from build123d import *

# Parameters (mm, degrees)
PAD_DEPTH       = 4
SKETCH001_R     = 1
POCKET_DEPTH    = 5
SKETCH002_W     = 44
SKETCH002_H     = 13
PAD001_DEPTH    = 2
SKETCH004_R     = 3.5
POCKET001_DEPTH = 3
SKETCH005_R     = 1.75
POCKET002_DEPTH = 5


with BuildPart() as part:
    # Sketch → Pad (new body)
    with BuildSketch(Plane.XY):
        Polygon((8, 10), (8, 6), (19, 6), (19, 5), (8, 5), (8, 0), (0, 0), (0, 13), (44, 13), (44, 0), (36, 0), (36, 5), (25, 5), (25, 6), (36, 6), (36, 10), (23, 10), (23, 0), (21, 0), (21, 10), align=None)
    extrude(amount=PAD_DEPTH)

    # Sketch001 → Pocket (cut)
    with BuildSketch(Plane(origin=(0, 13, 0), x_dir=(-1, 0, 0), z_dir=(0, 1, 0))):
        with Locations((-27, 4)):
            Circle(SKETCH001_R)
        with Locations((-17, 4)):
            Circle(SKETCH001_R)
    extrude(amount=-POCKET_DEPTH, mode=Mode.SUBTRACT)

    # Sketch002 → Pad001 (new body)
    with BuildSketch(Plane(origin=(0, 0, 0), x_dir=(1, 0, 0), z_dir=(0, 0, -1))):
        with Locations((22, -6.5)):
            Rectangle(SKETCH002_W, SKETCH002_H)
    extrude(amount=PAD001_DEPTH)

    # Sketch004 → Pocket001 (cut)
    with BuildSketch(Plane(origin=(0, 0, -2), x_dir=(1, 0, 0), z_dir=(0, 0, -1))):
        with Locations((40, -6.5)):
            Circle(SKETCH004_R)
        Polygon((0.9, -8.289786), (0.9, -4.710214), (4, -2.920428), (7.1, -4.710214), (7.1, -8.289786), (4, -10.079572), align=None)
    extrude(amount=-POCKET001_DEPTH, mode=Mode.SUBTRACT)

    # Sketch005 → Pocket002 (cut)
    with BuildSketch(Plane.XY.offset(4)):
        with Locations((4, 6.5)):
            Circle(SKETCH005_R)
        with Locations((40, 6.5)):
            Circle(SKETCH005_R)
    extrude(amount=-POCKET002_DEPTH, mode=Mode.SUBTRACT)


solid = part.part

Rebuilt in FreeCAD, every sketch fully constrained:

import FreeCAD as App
import Part
import Sketcher
Q = App.Units.Quantity

doc = App.newDocument("Part")
body = doc.addObject("PartDesign::Body", "Body")

sketch1 = body.newObject("Sketcher::SketchObject", "Sketch")
sketch1.AttachmentSupport = (doc.getObject("XY_Plane"), [""])
sketch1.MapMode = "FlatFace"
sketch1.addGeometry(Part.LineSegment(App.Vector(8, 6, 0), App.Vector(8, 10, 0)), False)
sketch1.addGeometry(Part.LineSegment(App.Vector(8, 10, 0), App.Vector(21, 10, 0)), False)
sketch1.addGeometry(Part.LineSegment(App.Vector(21, 10, 0), App.Vector(21, 0, 0)), False)
sketch1.addGeometry(Part.LineSegment(App.Vector(21, 0, 0), App.Vector(23, 0, 0)), False)
sketch1.addGeometry(Part.LineSegment(App.Vector(23, 0, 0), App.Vector(23, 10, 0)), False)
sketch1.addGeometry(Part.LineSegment(App.Vector(23, 10, 0), App.Vector(36, 10, 0)), False)
sketch1.addGeometry(Part.LineSegment(App.Vector(36, 10, 0), App.Vector(36, 6, 0)), False)
sketch1.addGeometry(Part.LineSegment(App.Vector(36, 6, 0), App.Vector(25, 6, 0)), False)
sketch1.addGeometry(Part.LineSegment(App.Vector(25, 6, 0), App.Vector(25, 5, 0)), False)
sketch1.addGeometry(Part.LineSegment(App.Vector(25, 5, 0), App.Vector(36, 5, 0)), False)
sketch1.addGeometry(Part.LineSegment(App.Vector(36, 5, 0), App.Vector(36, 0, 0)), False)
sketch1.addGeometry(Part.LineSegment(App.Vector(36, 0, 0), App.Vector(44, 0, 0)), False)
sketch1.addGeometry(Part.LineSegment(App.Vector(44, 0, 0), App.Vector(44, 13, 0)), False)
sketch1.addGeometry(Part.LineSegment(App.Vector(44, 13, 0), App.Vector(0, 13, 0)), False)
sketch1.addGeometry(Part.LineSegment(App.Vector(0, 13, 0), App.Vector(0, 0, 0)), False)
sketch1.addGeometry(Part.LineSegment(App.Vector(0, 0, 0), App.Vector(8, 0, 0)), False)
sketch1.addGeometry(Part.LineSegment(App.Vector(8, 0, 0), App.Vector(8, 5, 0)), False)
sketch1.addGeometry(Part.LineSegment(App.Vector(8, 5, 0), App.Vector(19, 5, 0)), False)
sketch1.addGeometry(Part.LineSegment(App.Vector(19, 5, 0), App.Vector(19, 6, 0)), False)
sketch1.addGeometry(Part.LineSegment(App.Vector(19, 6, 0), App.Vector(8, 6, 0)), False)
sketch1.addConstraint(Sketcher.Constraint("Coincident", 0, 2, 1, 1))
sketch1.addConstraint(Sketcher.Constraint("Coincident", 1, 2, 2, 1))
sketch1.addConstraint(Sketcher.Constraint("Coincident", 2, 2, 3, 1))
sketch1.addConstraint(Sketcher.Constraint("Coincident", 3, 2, 4, 1))
sketch1.addConstraint(Sketcher.Constraint("Coincident", 4, 2, 5, 1))
sketch1.addConstraint(Sketcher.Constraint("Coincident", 5, 2, 6, 1))
sketch1.addConstraint(Sketcher.Constraint("Coincident", 6, 2, 7, 1))
sketch1.addConstraint(Sketcher.Constraint("Coincident", 7, 2, 8, 1))
sketch1.addConstraint(Sketcher.Constraint("Coincident", 8, 2, 9, 1))
sketch1.addConstraint(Sketcher.Constraint("Coincident", 9, 2, 10, 1))
sketch1.addConstraint(Sketcher.Constraint("Coincident", 10, 2, 11, 1))
sketch1.addConstraint(Sketcher.Constraint("Coincident", 11, 2, 12, 1))
sketch1.addConstraint(Sketcher.Constraint("Coincident", 12, 2, 13, 1))
sketch1.addConstraint(Sketcher.Constraint("Coincident", 13, 2, 14, 1))
sketch1.addConstraint(Sketcher.Constraint("Coincident", 14, 2, 15, 1))
sketch1.addConstraint(Sketcher.Constraint("Coincident", 15, 2, 16, 1))
sketch1.addConstraint(Sketcher.Constraint("Coincident", 16, 2, 17, 1))
sketch1.addConstraint(Sketcher.Constraint("Coincident", 17, 2, 18, 1))
sketch1.addConstraint(Sketcher.Constraint("Coincident", 18, 2, 19, 1))
sketch1.addConstraint(Sketcher.Constraint("Coincident", 19, 2, 0, 1))
sketch1.addConstraint(Sketcher.Constraint("Vertical", 0))
sketch1.addConstraint(Sketcher.Constraint("Horizontal", 1))
sketch1.addConstraint(Sketcher.Constraint("Vertical", 2))
sketch1.addConstraint(Sketcher.Constraint("Horizontal", 3))
sketch1.addConstraint(Sketcher.Constraint("Vertical", 4))
sketch1.addConstraint(Sketcher.Constraint("Horizontal", 5))
sketch1.addConstraint(Sketcher.Constraint("Vertical", 6))
sketch1.addConstraint(Sketcher.Constraint("Horizontal", 7))
sketch1.addConstraint(Sketcher.Constraint("Vertical", 8))
sketch1.addConstraint(Sketcher.Constraint("Horizontal", 9))
sketch1.addConstraint(Sketcher.Constraint("Vertical", 10))
sketch1.addConstraint(Sketcher.Constraint("Horizontal", 11))
sketch1.addConstraint(Sketcher.Constraint("Vertical", 12))
sketch1.addConstraint(Sketcher.Constraint("Horizontal", 13))
sketch1.addConstraint(Sketcher.Constraint("Vertical", 14))
sketch1.addConstraint(Sketcher.Constraint("Horizontal", 15))
sketch1.addConstraint(Sketcher.Constraint("Vertical", 16))
sketch1.addConstraint(Sketcher.Constraint("Horizontal", 17))
sketch1.addConstraint(Sketcher.Constraint("Vertical", 18))
sketch1.addConstraint(Sketcher.Constraint("Horizontal", 19))
sketch1.addConstraint(Sketcher.Constraint("Coincident", 14, 2, -1, 1))
sketch1.addConstraint(Sketcher.Constraint("PointOnObject", 2, 2, -1))
sketch1.addConstraint(Sketcher.Constraint("PointOnObject", 10, 2, -1))
sketch1.addConstraint(Sketcher.Constraint("Horizontal", 1, 2, 4, 2))
sketch1.addConstraint(Sketcher.Constraint("Horizontal", 9, 2, 16, 2))
sketch1.addConstraint(Sketcher.Constraint("Horizontal", 7, 2, 18, 2))
sketch1.addConstraint(Sketcher.Constraint("Vertical", 6, 2, 9, 2))
sketch1.addConstraint(Sketcher.Constraint("Vertical", 0, 2, 15, 2))
sketch1.addConstraint(Sketcher.Constraint("Equal", 1, 5))
sketch1.addConstraint(Sketcher.Constraint("Equal", 11, 15))
sketch1.addConstraint(Sketcher.Constraint("Equal", 9, 17))
sketch1.addConstraint(Sketcher.Constraint("Equal", 5, 12))
sketch1.addConstraint(Sketcher.Constraint("DistanceX", 1, 1, 1, 2, Q("13 mm")))
sketch1.addConstraint(Sketcher.Constraint("DistanceX", 3, 1, 3, 2, Q("2 mm")))
sketch1.addConstraint(Sketcher.Constraint("DistanceX", 7, 2, 7, 1, Q("11 mm")))
sketch1.addConstraint(Sketcher.Constraint("DistanceX", 11, 1, 11, 2, Q("8 mm")))
sketch1.addConstraint(Sketcher.Constraint("DistanceY", 0, 1, 0, 2, Q("4 mm")))
sketch1.addConstraint(Sketcher.Constraint("DistanceY", 2, 2, 2, 1, Q("10 mm")))
sketch1.addConstraint(Sketcher.Constraint("DistanceY", 8, 2, 8, 1, Q("1 mm")))
pad1 = body.newObject("PartDesign::Pad", "Pad")
pad1.Profile = sketch1
pad1.Length = 4

sketch2 = body.newObject("Sketcher::SketchObject", "Sketch001")
sketch2.AttachmentSupport = (doc.getObject("XZ_Plane"), [""])
sketch2.MapMode = "FlatFace"
sketch2.AttachmentOffset = App.Placement(App.Vector(0, 0, -13), App.Rotation())
sketch2.addGeometry(Part.Circle(App.Vector(27, 4, 0), App.Vector(0, 0, 1), 1), False)
sketch2.addGeometry(Part.Circle(App.Vector(17, 4, 0), App.Vector(0, 0, 1), 1), False)
sketch2.addConstraint(Sketcher.Constraint("Equal", 0, 1))
sketch2.addConstraint(Sketcher.Constraint("Horizontal", 0, 3, 1, 3))
sketch2.addConstraint(Sketcher.Constraint("Diameter", 0, Q("2 mm")))
sketch2.addConstraint(Sketcher.Constraint("DistanceX", -1, 1, 0, 3, Q("27 mm")))
sketch2.addConstraint(Sketcher.Constraint("DistanceY", -1, 1, 0, 3, Q("4 mm")))
sketch2.addConstraint(Sketcher.Constraint("DistanceX", -1, 1, 1, 3, Q("17 mm")))
pocket1 = body.newObject("PartDesign::Pocket", "Pocket")
pocket1.Profile = sketch2
pocket1.Length = 5
pocket1.Reversed = True

sketch3 = body.newObject("Sketcher::SketchObject", "Sketch002")
sketch3.AttachmentSupport = (doc.getObject("XY_Plane"), [""])
sketch3.MapMode = "FlatFace"
sketch3.addGeometry(Part.LineSegment(App.Vector(0, 0, 0), App.Vector(0, 13, 0)), False)
sketch3.addGeometry(Part.LineSegment(App.Vector(0, 13, 0), App.Vector(44, 13, 0)), False)
sketch3.addGeometry(Part.LineSegment(App.Vector(44, 13, 0), App.Vector(44, 0, 0)), False)
sketch3.addGeometry(Part.LineSegment(App.Vector(44, 0, 0), App.Vector(0, 0, 0)), False)
sketch3.addConstraint(Sketcher.Constraint("Coincident", 0, 2, 1, 1))
sketch3.addConstraint(Sketcher.Constraint("Coincident", 1, 2, 2, 1))
sketch3.addConstraint(Sketcher.Constraint("Coincident", 2, 2, 3, 1))
sketch3.addConstraint(Sketcher.Constraint("Coincident", 3, 2, 0, 1))
sketch3.addConstraint(Sketcher.Constraint("Vertical", 0))
sketch3.addConstraint(Sketcher.Constraint("Horizontal", 1))
sketch3.addConstraint(Sketcher.Constraint("Vertical", 2))
sketch3.addConstraint(Sketcher.Constraint("Horizontal", 3))
sketch3.addConstraint(Sketcher.Constraint("Coincident", 3, 2, -1, 1))
sketch3.addConstraint(Sketcher.Constraint("DistanceX", 1, 1, 1, 2, Q("44 mm")))
sketch3.addConstraint(Sketcher.Constraint("DistanceY", 0, 1, 0, 2, Q("13 mm")))
pad2 = body.newObject("PartDesign::Pad", "Pad001")
pad2.Profile = sketch3
pad2.Length = 2
pad2.Reversed = True

sketch4 = body.newObject("Sketcher::SketchObject", "Sketch003")
sketch4.AttachmentSupport = (doc.getObject("XY_Plane"), [""])
sketch4.MapMode = "FlatFace"
sketch4.AttachmentOffset = App.Placement(App.Vector(0, 0, -2), App.Rotation())
sketch4.addGeometry(Part.Circle(App.Vector(40, 6.5, 0), App.Vector(0, 0, 1), 3.5), False)
sketch4.addGeometry(Part.LineSegment(App.Vector(0.9, 4.7, 0), App.Vector(0.9, 8.3, 0)), False)
sketch4.addGeometry(Part.LineSegment(App.Vector(0.9, 8.3, 0), App.Vector(4, 10.1, 0)), False)
sketch4.addGeometry(Part.LineSegment(App.Vector(4, 10.1, 0), App.Vector(7.1, 8.3, 0)), False)
sketch4.addGeometry(Part.LineSegment(App.Vector(7.1, 8.3, 0), App.Vector(7.1, 4.7, 0)), False)
sketch4.addGeometry(Part.LineSegment(App.Vector(7.1, 4.7, 0), App.Vector(4, 2.9, 0)), False)
sketch4.addGeometry(Part.LineSegment(App.Vector(4, 2.9, 0), App.Vector(0.9, 4.7, 0)), False)
sketch4.addConstraint(Sketcher.Constraint("Coincident", 1, 2, 2, 1))
sketch4.addConstraint(Sketcher.Constraint("Coincident", 2, 2, 3, 1))
sketch4.addConstraint(Sketcher.Constraint("Coincident", 3, 2, 4, 1))
sketch4.addConstraint(Sketcher.Constraint("Coincident", 4, 2, 5, 1))
sketch4.addConstraint(Sketcher.Constraint("Coincident", 5, 2, 6, 1))
sketch4.addConstraint(Sketcher.Constraint("Coincident", 6, 2, 1, 1))
sketch4.addConstraint(Sketcher.Constraint("Vertical", 1))
sketch4.addConstraint(Sketcher.Constraint("Vertical", 4))
sketch4.addConstraint(Sketcher.Constraint("Parallel", 2, 5))
sketch4.addConstraint(Sketcher.Constraint("Parallel", 3, 6))
sketch4.addConstraint(Sketcher.Constraint("Horizontal", 1, 2, 3, 2))
sketch4.addConstraint(Sketcher.Constraint("Horizontal", 4, 2, 6, 2))
sketch4.addConstraint(Sketcher.Constraint("Vertical", 2, 2, 5, 2))
sketch4.addConstraint(Sketcher.Constraint("Diameter", 0, Q("7 mm")))
sketch4.addConstraint(Sketcher.Constraint("Angle", 2, Q("30.000002 deg")))
sketch4.addConstraint(Sketcher.Constraint("DistanceX", -1, 1, 0, 3, Q("40 mm")))
sketch4.addConstraint(Sketcher.Constraint("DistanceX", -1, 1, 2, 2, Q("4 mm")))
sketch4.addConstraint(Sketcher.Constraint("DistanceY", -1, 1, 0, 3, Q("6.5 mm")))
sketch4.addConstraint(Sketcher.Constraint("DistanceX", -1, 1, 1, 2, Q("0.9 mm")))
sketch4.addConstraint(Sketcher.Constraint("DistanceY", 1, 1, 1, 2, Q("3.579572 mm")))
sketch4.addConstraint(Sketcher.Constraint("DistanceY", -1, 1, 1, 2, Q("8.289786 mm")))
pocket2 = body.newObject("PartDesign::Pocket", "Pocket001")
pocket2.Profile = sketch4
pocket2.Length = 3
pocket2.Reversed = True

sketch5 = body.newObject("Sketcher::SketchObject", "Sketch004")
sketch5.AttachmentSupport = (doc.getObject("XY_Plane"), [""])
sketch5.MapMode = "FlatFace"
sketch5.AttachmentOffset = App.Placement(App.Vector(0, 0, 4), App.Rotation())
sketch5.addGeometry(Part.Circle(App.Vector(4, 6.5, 0), App.Vector(0, 0, 1), 1.8), False)
sketch5.addGeometry(Part.Circle(App.Vector(40, 6.5, 0), App.Vector(0, 0, 1), 1.8), False)
sketch5.addConstraint(Sketcher.Constraint("Equal", 0, 1))
sketch5.addConstraint(Sketcher.Constraint("Horizontal", 0, 3, 1, 3))
sketch5.addConstraint(Sketcher.Constraint("Diameter", 0, Q("3.5 mm")))
sketch5.addConstraint(Sketcher.Constraint("DistanceX", -1, 1, 0, 3, Q("4 mm")))
sketch5.addConstraint(Sketcher.Constraint("DistanceX", -1, 1, 1, 3, Q("40 mm")))
sketch5.addConstraint(Sketcher.Constraint("DistanceY", -1, 1, 0, 3, Q("6.5 mm")))
pocket3 = body.newObject("PartDesign::Pocket", "Pocket002")
pocket3.Profile = sketch5
pocket3.Length = 5

doc.recompute()
